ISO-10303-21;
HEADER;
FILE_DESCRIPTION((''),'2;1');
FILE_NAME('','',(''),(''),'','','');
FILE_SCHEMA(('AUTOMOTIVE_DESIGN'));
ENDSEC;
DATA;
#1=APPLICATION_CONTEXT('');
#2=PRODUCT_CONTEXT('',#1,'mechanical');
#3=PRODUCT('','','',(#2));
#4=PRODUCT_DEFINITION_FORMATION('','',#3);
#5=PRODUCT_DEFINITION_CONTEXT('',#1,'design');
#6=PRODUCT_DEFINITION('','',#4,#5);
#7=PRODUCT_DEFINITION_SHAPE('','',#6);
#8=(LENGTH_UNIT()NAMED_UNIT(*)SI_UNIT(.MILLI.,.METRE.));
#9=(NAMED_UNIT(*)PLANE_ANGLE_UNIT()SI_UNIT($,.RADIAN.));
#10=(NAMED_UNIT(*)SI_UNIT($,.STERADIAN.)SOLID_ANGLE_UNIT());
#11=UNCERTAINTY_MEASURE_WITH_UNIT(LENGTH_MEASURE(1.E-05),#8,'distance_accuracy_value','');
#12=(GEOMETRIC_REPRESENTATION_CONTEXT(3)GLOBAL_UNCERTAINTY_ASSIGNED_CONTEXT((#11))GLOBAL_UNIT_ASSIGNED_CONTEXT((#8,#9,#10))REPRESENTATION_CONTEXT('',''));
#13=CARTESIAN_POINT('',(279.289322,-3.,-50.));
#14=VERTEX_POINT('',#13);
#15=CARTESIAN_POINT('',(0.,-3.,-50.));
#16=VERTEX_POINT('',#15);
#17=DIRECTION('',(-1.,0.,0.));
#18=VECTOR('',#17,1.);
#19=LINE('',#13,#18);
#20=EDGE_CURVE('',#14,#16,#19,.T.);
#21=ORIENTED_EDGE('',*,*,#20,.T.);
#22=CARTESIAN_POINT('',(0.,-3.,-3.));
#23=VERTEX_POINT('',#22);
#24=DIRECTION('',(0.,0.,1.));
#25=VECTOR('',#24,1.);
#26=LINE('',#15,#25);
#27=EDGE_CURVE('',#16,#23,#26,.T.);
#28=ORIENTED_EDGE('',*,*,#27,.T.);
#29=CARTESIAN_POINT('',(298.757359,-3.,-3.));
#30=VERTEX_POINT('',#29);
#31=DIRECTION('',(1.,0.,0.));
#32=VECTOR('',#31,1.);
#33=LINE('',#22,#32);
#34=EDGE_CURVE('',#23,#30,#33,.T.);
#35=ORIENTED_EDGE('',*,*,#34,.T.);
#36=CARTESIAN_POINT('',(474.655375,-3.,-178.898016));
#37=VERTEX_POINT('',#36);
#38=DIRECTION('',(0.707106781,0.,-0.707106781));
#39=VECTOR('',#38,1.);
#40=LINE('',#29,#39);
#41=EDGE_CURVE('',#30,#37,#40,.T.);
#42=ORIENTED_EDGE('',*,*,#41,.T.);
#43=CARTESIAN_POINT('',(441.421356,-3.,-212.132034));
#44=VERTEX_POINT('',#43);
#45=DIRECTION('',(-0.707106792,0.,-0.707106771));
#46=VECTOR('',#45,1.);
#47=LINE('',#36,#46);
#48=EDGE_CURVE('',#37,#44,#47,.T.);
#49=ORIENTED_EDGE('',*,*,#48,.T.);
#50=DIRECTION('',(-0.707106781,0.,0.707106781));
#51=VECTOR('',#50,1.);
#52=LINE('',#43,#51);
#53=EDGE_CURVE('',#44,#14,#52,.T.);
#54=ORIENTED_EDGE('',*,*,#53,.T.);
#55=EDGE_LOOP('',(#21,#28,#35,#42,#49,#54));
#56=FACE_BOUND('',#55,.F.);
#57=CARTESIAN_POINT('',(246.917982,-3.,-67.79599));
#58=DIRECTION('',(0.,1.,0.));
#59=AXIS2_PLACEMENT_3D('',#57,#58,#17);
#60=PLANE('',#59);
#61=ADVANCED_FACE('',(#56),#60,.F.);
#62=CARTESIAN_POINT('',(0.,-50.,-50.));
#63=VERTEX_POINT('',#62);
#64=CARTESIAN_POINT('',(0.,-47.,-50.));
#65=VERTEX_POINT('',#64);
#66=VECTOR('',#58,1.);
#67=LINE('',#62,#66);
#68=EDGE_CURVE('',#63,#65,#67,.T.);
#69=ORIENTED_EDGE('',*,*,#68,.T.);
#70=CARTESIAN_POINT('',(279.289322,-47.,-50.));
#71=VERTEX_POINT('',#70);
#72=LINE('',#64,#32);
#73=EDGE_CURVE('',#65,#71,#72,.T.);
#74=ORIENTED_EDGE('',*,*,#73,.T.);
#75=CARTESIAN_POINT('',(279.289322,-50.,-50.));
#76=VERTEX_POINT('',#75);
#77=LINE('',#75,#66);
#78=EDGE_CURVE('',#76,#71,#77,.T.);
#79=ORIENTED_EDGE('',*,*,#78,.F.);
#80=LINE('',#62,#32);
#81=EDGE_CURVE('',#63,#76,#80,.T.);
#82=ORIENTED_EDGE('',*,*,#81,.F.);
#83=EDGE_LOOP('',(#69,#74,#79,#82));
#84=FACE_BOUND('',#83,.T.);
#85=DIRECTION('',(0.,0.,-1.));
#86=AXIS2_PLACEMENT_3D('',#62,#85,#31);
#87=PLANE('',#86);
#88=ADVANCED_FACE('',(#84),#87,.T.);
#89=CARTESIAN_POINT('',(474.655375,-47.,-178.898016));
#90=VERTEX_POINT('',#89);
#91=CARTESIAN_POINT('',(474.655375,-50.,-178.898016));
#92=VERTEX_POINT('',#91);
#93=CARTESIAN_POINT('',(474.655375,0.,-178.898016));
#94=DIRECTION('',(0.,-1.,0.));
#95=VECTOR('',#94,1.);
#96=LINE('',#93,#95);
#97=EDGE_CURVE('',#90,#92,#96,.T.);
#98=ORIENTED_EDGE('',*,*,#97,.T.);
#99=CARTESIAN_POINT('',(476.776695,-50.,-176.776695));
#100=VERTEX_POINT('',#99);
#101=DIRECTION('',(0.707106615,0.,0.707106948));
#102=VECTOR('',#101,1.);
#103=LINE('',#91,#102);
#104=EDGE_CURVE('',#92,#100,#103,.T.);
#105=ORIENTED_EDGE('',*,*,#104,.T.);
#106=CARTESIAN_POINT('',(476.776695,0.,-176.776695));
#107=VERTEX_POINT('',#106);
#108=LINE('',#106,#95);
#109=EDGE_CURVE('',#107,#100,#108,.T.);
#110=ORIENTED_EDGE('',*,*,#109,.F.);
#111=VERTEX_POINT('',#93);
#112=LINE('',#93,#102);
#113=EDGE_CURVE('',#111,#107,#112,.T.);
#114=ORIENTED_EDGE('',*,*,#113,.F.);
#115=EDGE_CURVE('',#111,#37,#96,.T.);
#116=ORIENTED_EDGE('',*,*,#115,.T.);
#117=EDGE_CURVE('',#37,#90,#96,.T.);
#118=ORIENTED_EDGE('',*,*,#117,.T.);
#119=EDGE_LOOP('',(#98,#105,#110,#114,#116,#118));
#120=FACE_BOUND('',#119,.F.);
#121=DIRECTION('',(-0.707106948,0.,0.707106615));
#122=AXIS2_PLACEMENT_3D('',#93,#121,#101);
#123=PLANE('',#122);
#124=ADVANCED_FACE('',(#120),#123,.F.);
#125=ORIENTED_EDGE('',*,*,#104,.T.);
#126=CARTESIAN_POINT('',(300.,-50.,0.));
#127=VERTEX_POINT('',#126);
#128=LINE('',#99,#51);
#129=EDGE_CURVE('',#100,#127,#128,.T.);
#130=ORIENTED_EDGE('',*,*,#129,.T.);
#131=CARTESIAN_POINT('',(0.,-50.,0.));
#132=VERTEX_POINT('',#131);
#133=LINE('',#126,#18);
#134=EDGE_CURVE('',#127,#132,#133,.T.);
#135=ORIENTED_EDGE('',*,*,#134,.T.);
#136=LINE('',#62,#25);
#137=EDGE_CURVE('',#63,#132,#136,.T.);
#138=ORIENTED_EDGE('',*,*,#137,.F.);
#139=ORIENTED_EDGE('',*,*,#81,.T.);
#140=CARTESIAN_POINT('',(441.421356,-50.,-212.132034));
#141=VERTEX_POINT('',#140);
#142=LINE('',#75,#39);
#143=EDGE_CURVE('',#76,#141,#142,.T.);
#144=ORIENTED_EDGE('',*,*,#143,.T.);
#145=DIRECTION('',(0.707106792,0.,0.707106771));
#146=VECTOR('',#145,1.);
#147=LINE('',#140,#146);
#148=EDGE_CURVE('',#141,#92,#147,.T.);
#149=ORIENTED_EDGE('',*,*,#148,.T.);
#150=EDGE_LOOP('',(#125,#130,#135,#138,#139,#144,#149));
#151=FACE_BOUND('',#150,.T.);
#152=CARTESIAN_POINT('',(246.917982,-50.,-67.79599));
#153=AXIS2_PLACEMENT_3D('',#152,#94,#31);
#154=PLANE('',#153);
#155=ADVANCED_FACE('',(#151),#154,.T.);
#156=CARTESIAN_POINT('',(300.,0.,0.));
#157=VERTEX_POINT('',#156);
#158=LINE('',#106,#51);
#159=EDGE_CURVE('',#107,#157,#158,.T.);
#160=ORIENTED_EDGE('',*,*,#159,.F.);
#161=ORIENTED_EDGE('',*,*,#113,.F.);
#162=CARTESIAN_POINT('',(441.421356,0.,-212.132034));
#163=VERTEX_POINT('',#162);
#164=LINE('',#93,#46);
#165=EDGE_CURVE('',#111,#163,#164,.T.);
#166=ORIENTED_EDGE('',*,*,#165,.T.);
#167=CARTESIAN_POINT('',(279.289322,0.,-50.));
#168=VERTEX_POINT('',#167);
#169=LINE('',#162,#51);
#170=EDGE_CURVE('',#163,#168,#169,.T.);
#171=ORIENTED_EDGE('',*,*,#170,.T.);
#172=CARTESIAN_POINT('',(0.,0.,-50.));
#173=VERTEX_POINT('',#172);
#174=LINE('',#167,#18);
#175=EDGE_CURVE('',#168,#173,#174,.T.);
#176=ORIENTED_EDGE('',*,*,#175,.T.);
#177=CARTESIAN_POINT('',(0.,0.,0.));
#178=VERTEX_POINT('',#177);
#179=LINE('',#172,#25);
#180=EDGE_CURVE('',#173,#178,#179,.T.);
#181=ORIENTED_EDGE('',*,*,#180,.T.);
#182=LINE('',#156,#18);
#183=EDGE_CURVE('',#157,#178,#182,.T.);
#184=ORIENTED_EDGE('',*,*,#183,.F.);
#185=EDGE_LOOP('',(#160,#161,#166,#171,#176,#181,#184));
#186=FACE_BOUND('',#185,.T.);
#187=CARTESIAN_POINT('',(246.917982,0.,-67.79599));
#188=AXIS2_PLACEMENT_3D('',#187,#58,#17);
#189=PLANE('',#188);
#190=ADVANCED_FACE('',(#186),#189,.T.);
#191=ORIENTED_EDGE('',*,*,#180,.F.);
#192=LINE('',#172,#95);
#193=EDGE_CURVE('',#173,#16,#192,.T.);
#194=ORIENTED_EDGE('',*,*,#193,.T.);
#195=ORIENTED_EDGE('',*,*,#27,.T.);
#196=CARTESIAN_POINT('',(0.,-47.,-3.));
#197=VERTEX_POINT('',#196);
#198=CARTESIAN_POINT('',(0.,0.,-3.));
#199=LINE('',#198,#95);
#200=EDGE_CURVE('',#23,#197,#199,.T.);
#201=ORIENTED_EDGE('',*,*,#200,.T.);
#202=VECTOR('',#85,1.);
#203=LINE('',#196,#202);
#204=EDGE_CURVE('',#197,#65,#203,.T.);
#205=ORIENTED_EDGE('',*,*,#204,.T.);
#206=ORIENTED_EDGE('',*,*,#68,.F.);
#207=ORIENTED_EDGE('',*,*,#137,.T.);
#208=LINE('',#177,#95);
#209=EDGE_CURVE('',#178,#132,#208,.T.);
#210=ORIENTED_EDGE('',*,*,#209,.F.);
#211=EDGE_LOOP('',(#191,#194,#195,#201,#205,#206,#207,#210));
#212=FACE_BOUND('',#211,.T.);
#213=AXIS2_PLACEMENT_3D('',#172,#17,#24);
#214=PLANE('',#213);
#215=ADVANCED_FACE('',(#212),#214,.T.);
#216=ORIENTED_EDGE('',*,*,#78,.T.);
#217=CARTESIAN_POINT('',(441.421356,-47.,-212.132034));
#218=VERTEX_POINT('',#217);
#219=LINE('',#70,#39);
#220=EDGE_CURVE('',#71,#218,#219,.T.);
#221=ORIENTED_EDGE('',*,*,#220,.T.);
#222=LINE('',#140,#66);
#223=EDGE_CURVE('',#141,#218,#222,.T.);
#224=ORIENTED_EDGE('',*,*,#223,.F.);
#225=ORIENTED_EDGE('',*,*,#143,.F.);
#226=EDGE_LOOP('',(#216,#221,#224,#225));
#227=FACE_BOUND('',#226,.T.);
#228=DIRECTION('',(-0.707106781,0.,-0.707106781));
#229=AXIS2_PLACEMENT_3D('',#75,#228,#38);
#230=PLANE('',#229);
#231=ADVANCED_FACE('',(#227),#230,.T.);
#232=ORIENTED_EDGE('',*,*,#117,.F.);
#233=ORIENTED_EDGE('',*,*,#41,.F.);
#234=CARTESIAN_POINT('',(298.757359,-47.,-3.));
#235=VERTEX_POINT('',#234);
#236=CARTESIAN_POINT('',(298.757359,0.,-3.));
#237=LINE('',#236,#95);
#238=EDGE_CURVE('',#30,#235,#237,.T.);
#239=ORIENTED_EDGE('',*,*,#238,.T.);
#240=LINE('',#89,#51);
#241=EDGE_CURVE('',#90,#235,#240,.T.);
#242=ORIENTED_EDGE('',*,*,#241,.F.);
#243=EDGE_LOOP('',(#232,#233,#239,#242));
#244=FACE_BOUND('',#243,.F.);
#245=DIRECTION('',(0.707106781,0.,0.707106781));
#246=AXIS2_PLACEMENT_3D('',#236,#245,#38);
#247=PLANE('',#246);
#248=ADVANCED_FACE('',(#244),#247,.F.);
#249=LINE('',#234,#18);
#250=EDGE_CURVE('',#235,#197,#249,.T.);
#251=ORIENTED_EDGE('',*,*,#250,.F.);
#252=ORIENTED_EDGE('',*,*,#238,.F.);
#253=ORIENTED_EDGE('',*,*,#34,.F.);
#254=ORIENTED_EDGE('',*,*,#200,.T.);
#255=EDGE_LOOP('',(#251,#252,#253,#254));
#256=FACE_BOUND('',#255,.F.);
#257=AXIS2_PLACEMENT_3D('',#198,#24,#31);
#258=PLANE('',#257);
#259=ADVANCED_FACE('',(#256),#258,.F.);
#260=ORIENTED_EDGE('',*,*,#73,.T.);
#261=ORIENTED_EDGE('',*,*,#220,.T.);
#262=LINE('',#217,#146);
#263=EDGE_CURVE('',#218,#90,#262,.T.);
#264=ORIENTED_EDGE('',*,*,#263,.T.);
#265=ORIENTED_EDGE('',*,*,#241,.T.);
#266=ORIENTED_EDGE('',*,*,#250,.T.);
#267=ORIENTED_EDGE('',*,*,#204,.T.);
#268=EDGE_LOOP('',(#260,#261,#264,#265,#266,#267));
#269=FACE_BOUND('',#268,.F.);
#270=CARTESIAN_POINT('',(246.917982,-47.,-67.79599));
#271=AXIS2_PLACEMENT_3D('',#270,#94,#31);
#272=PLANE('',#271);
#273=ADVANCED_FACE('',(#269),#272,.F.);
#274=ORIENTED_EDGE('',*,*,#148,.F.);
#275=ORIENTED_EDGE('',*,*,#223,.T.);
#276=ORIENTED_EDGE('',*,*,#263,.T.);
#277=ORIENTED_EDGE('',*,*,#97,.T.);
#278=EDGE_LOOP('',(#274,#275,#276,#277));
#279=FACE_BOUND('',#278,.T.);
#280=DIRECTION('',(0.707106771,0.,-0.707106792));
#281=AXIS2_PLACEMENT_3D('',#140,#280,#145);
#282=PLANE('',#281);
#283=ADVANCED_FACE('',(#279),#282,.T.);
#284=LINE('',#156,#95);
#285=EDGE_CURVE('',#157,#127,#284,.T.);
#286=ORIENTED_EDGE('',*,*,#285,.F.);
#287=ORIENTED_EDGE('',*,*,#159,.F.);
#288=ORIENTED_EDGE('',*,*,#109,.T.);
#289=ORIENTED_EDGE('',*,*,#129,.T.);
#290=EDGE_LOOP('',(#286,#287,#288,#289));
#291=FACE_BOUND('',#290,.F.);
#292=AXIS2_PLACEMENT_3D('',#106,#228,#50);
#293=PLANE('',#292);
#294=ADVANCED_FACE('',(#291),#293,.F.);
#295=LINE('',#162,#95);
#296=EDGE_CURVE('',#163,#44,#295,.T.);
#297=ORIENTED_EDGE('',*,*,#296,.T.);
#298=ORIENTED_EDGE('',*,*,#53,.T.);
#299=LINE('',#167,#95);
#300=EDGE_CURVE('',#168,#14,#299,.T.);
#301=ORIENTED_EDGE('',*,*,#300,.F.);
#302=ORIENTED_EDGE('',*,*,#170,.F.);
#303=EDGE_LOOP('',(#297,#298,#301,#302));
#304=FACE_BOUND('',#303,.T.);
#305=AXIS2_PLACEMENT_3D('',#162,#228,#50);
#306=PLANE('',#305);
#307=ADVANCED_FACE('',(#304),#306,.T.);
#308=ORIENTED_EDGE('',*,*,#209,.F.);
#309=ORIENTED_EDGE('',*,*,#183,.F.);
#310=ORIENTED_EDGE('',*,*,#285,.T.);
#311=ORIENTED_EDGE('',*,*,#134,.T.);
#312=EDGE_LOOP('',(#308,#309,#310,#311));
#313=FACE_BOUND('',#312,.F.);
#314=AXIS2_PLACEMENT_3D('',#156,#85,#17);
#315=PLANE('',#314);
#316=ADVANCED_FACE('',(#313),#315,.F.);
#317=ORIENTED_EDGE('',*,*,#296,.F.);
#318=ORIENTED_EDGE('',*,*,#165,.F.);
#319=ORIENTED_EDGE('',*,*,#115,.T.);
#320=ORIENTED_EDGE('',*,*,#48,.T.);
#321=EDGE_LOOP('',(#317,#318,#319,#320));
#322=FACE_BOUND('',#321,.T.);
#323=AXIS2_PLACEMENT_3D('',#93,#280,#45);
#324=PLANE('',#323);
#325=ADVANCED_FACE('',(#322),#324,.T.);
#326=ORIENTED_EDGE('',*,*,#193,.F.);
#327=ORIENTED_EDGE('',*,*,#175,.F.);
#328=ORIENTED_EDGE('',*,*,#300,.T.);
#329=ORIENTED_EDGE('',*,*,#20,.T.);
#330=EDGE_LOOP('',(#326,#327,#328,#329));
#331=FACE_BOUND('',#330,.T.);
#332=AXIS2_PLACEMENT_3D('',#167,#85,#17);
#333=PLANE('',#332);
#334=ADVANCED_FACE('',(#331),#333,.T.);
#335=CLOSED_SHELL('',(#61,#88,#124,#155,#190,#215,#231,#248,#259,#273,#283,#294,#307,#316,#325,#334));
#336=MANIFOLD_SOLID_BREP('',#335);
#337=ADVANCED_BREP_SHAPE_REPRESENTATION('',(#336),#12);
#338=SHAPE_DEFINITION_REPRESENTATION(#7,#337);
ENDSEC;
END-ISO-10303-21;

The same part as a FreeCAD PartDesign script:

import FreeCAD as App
import Part
import Sketcher
from FreeCAD import Vector
Q = App.Units.Quantity


def add_polygon(sketch, points):
    """Adds a closed chain of lines whose ends are joined by coincident constraints."""
    first, n = sketch.GeometryCount, len(points)
    for a, b in zip(points, points[1:] + points[:1]):
        sketch.addGeometry(Part.LineSegment(App.Vector(*a, 0), App.Vector(*b, 0)), False)
    for i in range(n):
        sketch.addConstraint(Sketcher.Constraint("Coincident", first + i, 2, first + (i + 1) % n, 1))

doc = App.newDocument("Part")
body = doc.addObject("PartDesign::Body", "Body")

# Sketch on XZ plane
sketch1 = body.newObject("Sketcher::SketchObject", "Sketch")
sketch1.AttachmentSupport = (doc.getObject("XZ_Plane"), [""])
sketch1.MapMode = "FlatFace"
add_polygon(sketch1, [(300, 0), (0, 0), (0, -3), (298.8, -3), (474.7, -178.9), (476.8, -176.8)])  # lines 0-5
sketch1.addConstraint([
    Sketcher.Constraint("Horizontal", 0),
    Sketcher.Constraint("Vertical", 1),
    Sketcher.Constraint("Horizontal", 2),
    Sketcher.Constraint("Coincident", 0, 2, -1, 1),
    Sketcher.Constraint("Perpendicular", 3, 4),
    Sketcher.Constraint("Perpendicular", 4, 5),
    Sketcher.Constraint("DistanceX", 0, 2, 0, 1, Q("300 mm")),
    Sketcher.Constraint("DistanceY", 1, 2, 1, 1, Q("3 mm")),
    Sketcher.Constraint("Angle", 3, Q("-45 deg")),
    Sketcher.Constraint("Distance", 4, Q("3 mm")),
    Sketcher.Constraint("Distance", 5, Q("250 mm")),
])
pad1 = body.newObject("PartDesign::Pad", "Pad")
pad1.Profile = sketch1
pad1.Length = 50

# Sketch on XZ plane
sketch2 = body.newObject("Sketcher::SketchObject", "Sketch001")
sketch2.AttachmentSupport = (doc.getObject("XZ_Plane"), [""])
sketch2.MapMode = "FlatFace"
sketch2.AttachmentOffset = App.Placement(Vector(0, 0, 50), App.Rotation())
add_polygon(sketch2, [(475, -179), (299, -3), (0, -3), (0, -50), (279, -50), (441, -212)])  # lines 0-5
sketch2.addConstraint([
    Sketcher.Constraint("Horizontal", 1),
    Sketcher.Constraint("Vertical", 2),
    Sketcher.Constraint("Horizontal", 3),
    Sketcher.Constraint("PointOnObject", 1, 2, -2),
    Sketcher.Constraint("Parallel", 0, 4),
    Sketcher.Constraint("Perpendicular", 4, 5),
    Sketcher.Constraint("DistanceY", 2, 2, 2, 1, Q("47 mm")),
    Sketcher.Constraint("Angle", 0, Q("135 deg")),
    Sketcher.Constraint("Distance", 5, Q("47 mm")),
    Sketcher.Constraint("DistanceY", 0, 2, -1, 1, Q("3 mm")),
    Sketcher.Constraint("DistanceX", 1, 2, 1, 1, Q("298.757359 mm")),
    Sketcher.Constraint("Distance", 0, Q("248.75736 mm")),
])
pad2 = body.newObject("PartDesign::Pad", "Pad001")
pad2.Profile = sketch2
pad2.Length = 3
pad2.Reversed = True

# Sketch on XZ plane
sketch3 = body.newObject("Sketcher::SketchObject", "Sketch002")
sketch3.AttachmentSupport = (doc.getObject("XZ_Plane"), [""])
sketch3.MapMode = "FlatFace"
add_polygon(sketch3, [(299, -3), (475, -179), (441, -212), (279, -50), (0, -50), (0, -3)])  # lines 0-5
sketch3.addConstraint([
    Sketcher.Constraint("Horizontal", 3),
    Sketcher.Constraint("Vertical", 4),
    Sketcher.Constraint("Horizontal", 5),
    Sketcher.Constraint("PointOnObject", 3, 2, -2),
    Sketcher.Constraint("Perpendicular", 0, 1),
    Sketcher.Constraint("Perpendicular", 1, 2),
    Sketcher.Constraint("DistanceY", 4, 1, 4, 2, Q("47 mm")),
    Sketcher.Constraint("Angle", 0, Q("-45 deg")),
    Sketcher.Constraint("Distance", 1, Q("47 mm")),
    Sketcher.Constraint("DistanceY", 2, 2, -1, 1, Q("50 mm")),
    Sketcher.Constraint("DistanceX", 5, 1, 5, 2, Q("298.757359 mm")),
    Sketcher.Constraint("Distance", 0, Q("248.75736 mm")),
])
pad3 = body.newObject("PartDesign::Pad", "Pad002")
pad3.Profile = sketch3
pad3.Length = 3

doc.recompute()
